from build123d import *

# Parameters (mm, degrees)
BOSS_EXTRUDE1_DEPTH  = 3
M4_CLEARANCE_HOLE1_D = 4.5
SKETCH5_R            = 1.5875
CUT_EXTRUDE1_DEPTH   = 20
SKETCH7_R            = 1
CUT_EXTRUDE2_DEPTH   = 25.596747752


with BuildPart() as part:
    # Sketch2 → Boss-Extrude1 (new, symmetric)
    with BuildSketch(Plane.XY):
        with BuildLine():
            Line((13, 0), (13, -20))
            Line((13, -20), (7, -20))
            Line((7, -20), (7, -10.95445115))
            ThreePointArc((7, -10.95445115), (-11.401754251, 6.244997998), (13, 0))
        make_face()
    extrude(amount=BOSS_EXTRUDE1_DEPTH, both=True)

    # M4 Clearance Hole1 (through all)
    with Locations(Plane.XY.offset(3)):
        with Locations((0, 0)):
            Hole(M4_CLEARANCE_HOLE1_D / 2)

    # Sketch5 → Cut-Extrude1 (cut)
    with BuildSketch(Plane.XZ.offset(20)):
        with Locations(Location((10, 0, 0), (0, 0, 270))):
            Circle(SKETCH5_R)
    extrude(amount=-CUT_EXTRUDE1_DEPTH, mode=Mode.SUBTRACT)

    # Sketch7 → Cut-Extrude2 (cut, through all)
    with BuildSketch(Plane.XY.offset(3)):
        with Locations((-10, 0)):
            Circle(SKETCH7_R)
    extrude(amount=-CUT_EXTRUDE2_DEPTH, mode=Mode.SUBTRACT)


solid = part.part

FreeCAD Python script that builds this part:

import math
import FreeCAD as App
import Part
import Sketcher
Q = App.Units.Quantity

doc = App.newDocument("Part")
body = doc.addObject("PartDesign::Body", "Body")

# Sketch on XY plane
sketch1 = body.newObject("Sketcher::SketchObject", "Sketch")
sketch1.AttachmentSupport = (doc.getObject("XY_Plane"), [""])
sketch1.MapMode = "FlatFace"
sketch1.addGeometry([
    Part.LineSegment(App.Vector(13, -20, 0), App.Vector(13, 0, 0)),
    Part.ArcOfCircle(Part.Circle(App.Vector(0, 0, 0), App.Vector(0, 0, 1), 13), math.radians(0), math.radians(302.57897)),
    Part.LineSegment(App.Vector(7, -10.954451, 0), App.Vector(7, -20, 0)),
    Part.LineSegment(App.Vector(7, -20, 0), App.Vector(13, -20, 0)),
], False)
sketch1.addConstraint([
    Sketcher.Constraint("Tangent", 0, 2, 1, 1),
    Sketcher.Constraint("Coincident", 1, 2, 2, 1),
    Sketcher.Constraint("Coincident", 2, 2, 3, 1),
    Sketcher.Constraint("Coincident", 3, 2, 0, 1),
    Sketcher.Constraint("Vertical", 0),
    Sketcher.Constraint("Vertical", 2),
    Sketcher.Constraint("Horizontal", 3),
    Sketcher.Constraint("Coincident", 1, 3, -1, 1),
    Sketcher.Constraint("Radius", 1, Q("13 mm")),
    Sketcher.Constraint("DistanceX", 3, 1, 3, 2, Q("6 mm")),
    Sketcher.Constraint("DistanceY", 0, 1, 0, 2, Q("20 mm")),
])
pad1 = body.newObject("PartDesign::Pad", "Pad")
pad1.Profile = sketch1
pad1.Length = 6
pad1.Midplane = True

# Sketch on XY plane
sketch2 = body.newObject("Sketcher::SketchObject", "Sketch001")
sketch2.AttachmentSupport = (doc.getObject("XY_Plane"), [""])
sketch2.MapMode = "FlatFace"
sketch2.AttachmentOffset = App.Placement(App.Vector(0, 0, 3), App.Rotation())
sketch2.addGeometry(Part.Circle(App.Vector(0, 0, 0), App.Vector(0, 0, 1), 2.25), False)
sketch2.addConstraint([
    Sketcher.Constraint("Coincident", 0, 3, -1, 1),
    Sketcher.Constraint("Diameter", 0, Q("4.5 mm")),
])
doc.recompute()
hole = body.newObject("PartDesign::Hole", "Hole")
hole.Profile = sketch2
hole.ThreadType = "None"
hole.Diameter = 4.5
hole.DepthType = "ThroughAll"

# Sketch on XZ plane
sketch3 = body.newObject("Sketcher::SketchObject", "Sketch002")
sketch3.AttachmentSupport = (doc.getObject("XZ_Plane"), [""])
sketch3.MapMode = "FlatFace"
sketch3.AttachmentOffset = App.Placement(App.Vector(0, 0, 20), App.Rotation())
sketch3.addGeometry(Part.Circle(App.Vector(10, 0, 0), App.Vector(0, 0, 1), 1.5875), False)
sketch3.addConstraint([
    Sketcher.Constraint("PointOnObject", 0, 3, -1),
    Sketcher.Constraint("Diameter", 0, Q("3.175 mm")),
    Sketcher.Constraint("DistanceX", -1, 1, 0, 3, Q("10 mm")),
])
pocket1 = body.newObject("PartDesign::Pocket", "Pocket")
pocket1.Profile = sketch3
pocket1.Length = 20

# Sketch on XY plane
sketch4 = body.newObject("Sketcher::SketchObject", "Sketch003")
sketch4.AttachmentSupport = (doc.getObject("XY_Plane"), [""])
sketch4.MapMode = "FlatFace"
sketch4.AttachmentOffset = App.Placement(App.Vector(0, 0, 3), App.Rotation())
sketch4.addGeometry(Part.Circle(App.Vector(-10, 0, 0), App.Vector(0, 0, 1), 1), False)
sketch4.addConstraint([
    Sketcher.Constraint("PointOnObject", 0, 3, -1),
    Sketcher.Constraint("Diameter", 0, Q("2 mm")),
    Sketcher.Constraint("DistanceX", 0, 3, -1, 1, Q("10 mm")),
])
pocket2 = body.newObject("PartDesign::Pocket", "Pocket001")
pocket2.Profile = sketch4
pocket2.Type = "ThroughAll"

doc.recompute()
